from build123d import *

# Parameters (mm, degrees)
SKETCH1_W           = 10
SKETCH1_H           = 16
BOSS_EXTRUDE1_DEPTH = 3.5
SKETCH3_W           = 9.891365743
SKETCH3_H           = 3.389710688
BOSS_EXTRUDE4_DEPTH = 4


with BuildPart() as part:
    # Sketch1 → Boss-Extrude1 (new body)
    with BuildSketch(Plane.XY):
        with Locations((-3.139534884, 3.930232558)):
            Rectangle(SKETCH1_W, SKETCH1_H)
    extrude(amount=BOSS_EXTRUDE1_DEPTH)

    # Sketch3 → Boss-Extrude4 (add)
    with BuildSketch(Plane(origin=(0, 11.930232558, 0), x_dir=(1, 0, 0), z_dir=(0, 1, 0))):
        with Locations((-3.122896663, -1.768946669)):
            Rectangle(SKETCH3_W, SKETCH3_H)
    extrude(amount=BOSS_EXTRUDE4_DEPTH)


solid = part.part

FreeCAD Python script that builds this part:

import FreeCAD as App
import Part
import Sketcher
from FreeCAD import Vector
Q = App.Units.Quantity

doc = App.newDocument("Part")
params = doc.addObject("Spreadsheet::Sheet", "Params")
for row, (alias, value) in enumerate([
    ("sketch1_width", "10 mm"),
    ("sketch1_height", "16 mm"),
    ("pad1_length", "3.5 mm"),
    ("pad2_length", "4 mm"),
], start=1):
    params.set(f"A{row}", alias)
    params.set(f"B{row}", "=" + value)
    params.setAlias(f"B{row}", alias)

body = doc.addObject("PartDesign::Body", "Body")

# Sketch on XY plane
sketch1 = body.newObject("Sketcher::SketchObject", "Sketch")
sketch1.AttachmentSupport = (doc.getObject("XY_Plane"), [""])
sketch1.MapMode = "FlatFace"
sketch1.addGeometry([
    Part.LineSegment(Vector(-8, 12, 0), Vector(-8, -4, 0)),
    Part.LineSegment(Vector(-8, -4, 0), Vector(2, -4, 0)),
    Part.LineSegment(Vector(2, -4, 0), Vector(2, 12, 0)),
    Part.LineSegment(Vector(2, 12, 0), Vector(-8, 12, 0)),
], False)
sketch1.addConstraint([
    Sketcher.Constraint("Coincident", 0, 2, 1, 1),
    Sketcher.Constraint("Coincident", 1, 2, 2, 1),
    Sketcher.Constraint("Coincident", 2, 2, 3, 1),
    Sketcher.Constraint("Coincident", 3, 2, 0, 1),
    Sketcher.Constraint("Vertical", 0),
    Sketcher.Constraint("Horizontal", 1),
    Sketcher.Constraint("Vertical", 2),
    Sketcher.Constraint("Horizontal", 3),
    Sketcher.Constraint("DistanceX", 1, 1, 1, 2, Q("10 mm")),
    Sketcher.Constraint("DistanceY", 0, 2, 0, 1, Q("16 mm")),
    Sketcher.Constraint("DistanceX", 0, 2, -1, 1, Q("8.139535 mm")),
    Sketcher.Constraint("DistanceY", 0, 2, -1, 1, Q("4.069767 mm")),
])
sketch1.setExpression("Constraints[8]", "Params.sketch1_width")
sketch1.setExpression("Constraints[9]", "Params.sketch1_height")
pad1 = body.newObject("PartDesign::Pad", "Pad")
pad1.Profile = sketch1
pad1.setExpression("Length", "Params.pad1_length")

# Sketch on XZ plane
sketch2 = body.newObject("Sketcher::SketchObject", "Sketch001")
sketch2.AttachmentSupport = (doc.getObject("XZ_Plane"), [""])
sketch2.MapMode = "FlatFace"
sketch2.AttachmentOffset = App.Placement(Vector(0, 0, -11.930233), App.Rotation())
sketch2.addGeometry([
    Part.LineSegment(Vector(-8.1, 0.1, 0), Vector(-8.1, 3.5, 0)),
    Part.LineSegment(Vector(-8.1, 3.5, 0), Vector(1.8, 3.5, 0)),
    Part.LineSegment(Vector(1.8, 3.5, 0), Vector(1.8, 0.1, 0)),
    Part.LineSegment(Vector(1.8, 0.1, 0), Vector(-8.1, 0.1, 0)),
], False)
sketch2.addConstraint([
    Sketcher.Constraint("Coincident", 0, 2, 1, 1),
    Sketcher.Constraint("Coincident", 1, 2, 2, 1),
    Sketcher.Constraint("Coincident", 2, 2, 3, 1),
    Sketcher.Constraint("Coincident", 3, 2, 0, 1),
    Sketcher.Constraint("Vertical", 0),
    Sketcher.Constraint("Horizontal", 1),
    Sketcher.Constraint("Vertical", 2),
    Sketcher.Constraint("Horizontal", 3),
    Sketcher.Constraint("DistanceY", 0, 1, 0, 2, Q("3.389711 mm")),
    Sketcher.Constraint("DistanceX", 1, 1, 1, 2, Q("9.891366 mm")),
    Sketcher.Constraint("DistanceX", 0, 2, -1, 1, Q("8.06858 mm")),
    Sketcher.Constraint("DistanceY", -1, 1, 2, 2, Q("0.074091 mm")),
])
pad2 = body.newObject("PartDesign::Pad", "Pad001")
pad2.Profile = sketch2
pad2.setExpression("Length", "Params.pad2_length")
pad2.Reversed = True

doc.recompute()
